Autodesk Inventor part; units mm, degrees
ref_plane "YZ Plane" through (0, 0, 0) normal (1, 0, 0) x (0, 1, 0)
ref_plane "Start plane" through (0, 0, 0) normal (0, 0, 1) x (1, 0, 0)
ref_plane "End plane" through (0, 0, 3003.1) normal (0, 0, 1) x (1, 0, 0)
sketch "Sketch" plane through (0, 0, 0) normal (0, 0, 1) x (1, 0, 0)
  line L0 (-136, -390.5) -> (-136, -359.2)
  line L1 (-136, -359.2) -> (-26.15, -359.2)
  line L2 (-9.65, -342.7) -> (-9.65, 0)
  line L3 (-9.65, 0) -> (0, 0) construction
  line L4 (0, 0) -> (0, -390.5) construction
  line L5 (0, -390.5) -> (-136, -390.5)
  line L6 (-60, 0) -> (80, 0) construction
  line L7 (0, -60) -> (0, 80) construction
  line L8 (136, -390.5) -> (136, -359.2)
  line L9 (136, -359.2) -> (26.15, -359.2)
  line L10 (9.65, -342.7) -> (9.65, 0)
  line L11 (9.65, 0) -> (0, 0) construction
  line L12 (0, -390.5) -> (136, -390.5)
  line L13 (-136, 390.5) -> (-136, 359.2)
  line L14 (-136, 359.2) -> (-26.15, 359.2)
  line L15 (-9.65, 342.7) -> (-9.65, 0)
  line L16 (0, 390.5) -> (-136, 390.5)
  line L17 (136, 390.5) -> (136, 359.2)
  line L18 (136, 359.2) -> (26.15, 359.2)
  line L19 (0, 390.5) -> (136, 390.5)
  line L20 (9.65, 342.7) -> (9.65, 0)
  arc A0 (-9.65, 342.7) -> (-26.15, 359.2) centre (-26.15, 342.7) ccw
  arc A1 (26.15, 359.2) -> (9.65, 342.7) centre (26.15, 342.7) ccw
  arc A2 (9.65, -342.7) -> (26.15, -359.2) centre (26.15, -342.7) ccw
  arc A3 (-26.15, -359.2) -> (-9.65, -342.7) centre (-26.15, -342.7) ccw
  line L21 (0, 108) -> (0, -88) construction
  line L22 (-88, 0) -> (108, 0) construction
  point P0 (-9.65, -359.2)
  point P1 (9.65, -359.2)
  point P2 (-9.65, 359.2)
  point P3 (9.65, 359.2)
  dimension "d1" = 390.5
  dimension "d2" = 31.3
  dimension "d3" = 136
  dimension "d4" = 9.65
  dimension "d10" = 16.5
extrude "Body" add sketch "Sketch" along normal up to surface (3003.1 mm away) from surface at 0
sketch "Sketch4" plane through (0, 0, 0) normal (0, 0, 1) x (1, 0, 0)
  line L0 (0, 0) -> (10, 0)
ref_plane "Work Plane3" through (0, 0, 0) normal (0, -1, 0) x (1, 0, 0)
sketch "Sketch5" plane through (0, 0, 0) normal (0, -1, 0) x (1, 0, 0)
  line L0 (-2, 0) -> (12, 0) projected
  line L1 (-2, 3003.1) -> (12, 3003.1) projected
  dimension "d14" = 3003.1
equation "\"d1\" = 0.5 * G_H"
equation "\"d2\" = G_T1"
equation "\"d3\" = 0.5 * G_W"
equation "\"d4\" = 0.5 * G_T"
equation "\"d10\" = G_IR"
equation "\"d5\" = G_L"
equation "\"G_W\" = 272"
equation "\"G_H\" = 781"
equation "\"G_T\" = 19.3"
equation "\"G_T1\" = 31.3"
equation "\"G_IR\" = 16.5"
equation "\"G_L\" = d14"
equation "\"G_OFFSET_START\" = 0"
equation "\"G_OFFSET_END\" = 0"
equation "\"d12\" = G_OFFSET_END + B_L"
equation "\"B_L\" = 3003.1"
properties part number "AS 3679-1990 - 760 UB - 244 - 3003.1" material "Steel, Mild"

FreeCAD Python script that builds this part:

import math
import FreeCAD as App
import Part
import Sketcher
from FreeCAD import Vector

doc = App.newDocument("Part")
body = doc.addObject("PartDesign::Body", "Body")

sketch1 = body.newObject("Sketcher::SketchObject", "Sketch")
sketch1.AttachmentSupport = (doc.getObject("XY_Plane"), [""])
sketch1.MapMode = "FlatFace"
sketch1.addGeometry([
    Part.LineSegment(Vector(-136, -359, 0), Vector(-136, -390, 0)),
    Part.LineSegment(Vector(-136, -390, 0), Vector(136, -390, 0)),
    Part.LineSegment(Vector(136, -390, 0), Vector(136, -359, 0)),
    Part.LineSegment(Vector(136, -359, 0), Vector(26, -359, 0)),
    Part.ArcOfCircle(Part.Circle(Vector(26, -343, 0), Vector(0, 0, 1), 16), math.radians(180), math.radians(270)),
    Part.LineSegment(Vector(10, -343, 0), Vector(10, 343, 0)),
    Part.ArcOfCircle(Part.Circle(Vector(26, 343, 0), Vector(0, 0, 1), 16), math.radians(90), math.radians(180)),
    Part.LineSegment(Vector(26, 359, 0), Vector(136, 359, 0)),
    Part.LineSegment(Vector(136, 359, 0), Vector(136, 390, 0)),
    Part.LineSegment(Vector(136, 390, 0), Vector(-136, 390, 0)),
    Part.LineSegment(Vector(-136, 390, 0), Vector(-136, 359, 0)),
    Part.LineSegment(Vector(-136, 359, 0), Vector(-26, 359, 0)),
    Part.ArcOfCircle(Part.Circle(Vector(-26, 343, 0), Vector(0, 0, 1), 16), math.radians(0), math.radians(90)),
    Part.LineSegment(Vector(-10, 343, 0), Vector(-10, -343, 0)),
    Part.ArcOfCircle(Part.Circle(Vector(-26, -343, 0), Vector(0, 0, 1), 16), math.radians(-90), math.radians(0)),
    Part.LineSegment(Vector(-26, -359, 0), Vector(-136, -359, 0)),
], False)
sketch1.addConstraint([
    Sketcher.Constraint("Coincident", 0, 2, 1, 1),
    Sketcher.Constraint("Coincident", 1, 2, 2, 1),
    Sketcher.Constraint("Coincident", 2, 2, 3, 1),
    Sketcher.Constraint("Tangent", 3, 2, 4, 2),
    Sketcher.Constraint("Tangent", 4, 1, 5, 1),
    Sketcher.Constraint("Tangent", 5, 2, 6, 2),
    Sketcher.Constraint("Tangent", 6, 1, 7, 1),
    Sketcher.Constraint("Coincident", 7, 2, 8, 1),
    Sketcher.Constraint("Coincident", 8, 2, 9, 1),
    Sketcher.Constraint("Coincident", 9, 2, 10, 1),
    Sketcher.Constraint("Coincident", 10, 2, 11, 1),
    Sketcher.Constraint("Tangent", 11, 2, 12, 2),
    Sketcher.Constraint("Tangent", 12, 1, 13, 1),
    Sketcher.Constraint("Tangent", 13, 2, 14, 2),
    Sketcher.Constraint("Tangent", 14, 1, 15, 1),
    Sketcher.Constraint("Coincident", 15, 2, 0, 1),
    Sketcher.Constraint("Vertical", 0),
    Sketcher.Constraint("Horizontal", 1),
    Sketcher.Constraint("Vertical", 2),
    Sketcher.Constraint("Horizontal", 3),
    Sketcher.Constraint("Vertical", 5),
    Sketcher.Constraint("Horizontal", 7),
    Sketcher.Constraint("Vertical", 8),
    Sketcher.Constraint("Horizontal", 9),
    Sketcher.Constraint("Vertical", 10),
    Sketcher.Constraint("Horizontal", 11),
    Sketcher.Constraint("Vertical", 13),
    Sketcher.Constraint("Horizontal", 15),
    Sketcher.Constraint("Equal", 4, 6),
    Sketcher.Constraint("Equal", 6, 12),
    Sketcher.Constraint("Equal", 12, 14),
    Sketcher.Constraint("Symmetric", 4, 3, 12, 3, -1, 1),
    Sketcher.Constraint("Symmetric", 0, 2, 8, 2, -1, 1),
    Sketcher.Constraint("Symmetric", 7, 2, 10, 2, -2),
    Sketcher.Constraint("Symmetric", 2, 2, 15, 2, -2),
    Sketcher.Constraint("Radius", 4, 16.5),
    Sketcher.Constraint("DistanceY", 0, 2, 0, 1, 31.3),
    Sketcher.Constraint("DistanceX", 0, 2, -1, 1, 136.0),
    Sketcher.Constraint("DistanceY", 0, 2, -1, 1, 390.5),
    Sketcher.Constraint("DistanceX", -1, 1, 4, 1, 9.65),
])
pad1 = body.newObject("PartDesign::Pad", "Pad")
pad1.Profile = sketch1
pad1.Length = 3003.1

doc.recompute()
